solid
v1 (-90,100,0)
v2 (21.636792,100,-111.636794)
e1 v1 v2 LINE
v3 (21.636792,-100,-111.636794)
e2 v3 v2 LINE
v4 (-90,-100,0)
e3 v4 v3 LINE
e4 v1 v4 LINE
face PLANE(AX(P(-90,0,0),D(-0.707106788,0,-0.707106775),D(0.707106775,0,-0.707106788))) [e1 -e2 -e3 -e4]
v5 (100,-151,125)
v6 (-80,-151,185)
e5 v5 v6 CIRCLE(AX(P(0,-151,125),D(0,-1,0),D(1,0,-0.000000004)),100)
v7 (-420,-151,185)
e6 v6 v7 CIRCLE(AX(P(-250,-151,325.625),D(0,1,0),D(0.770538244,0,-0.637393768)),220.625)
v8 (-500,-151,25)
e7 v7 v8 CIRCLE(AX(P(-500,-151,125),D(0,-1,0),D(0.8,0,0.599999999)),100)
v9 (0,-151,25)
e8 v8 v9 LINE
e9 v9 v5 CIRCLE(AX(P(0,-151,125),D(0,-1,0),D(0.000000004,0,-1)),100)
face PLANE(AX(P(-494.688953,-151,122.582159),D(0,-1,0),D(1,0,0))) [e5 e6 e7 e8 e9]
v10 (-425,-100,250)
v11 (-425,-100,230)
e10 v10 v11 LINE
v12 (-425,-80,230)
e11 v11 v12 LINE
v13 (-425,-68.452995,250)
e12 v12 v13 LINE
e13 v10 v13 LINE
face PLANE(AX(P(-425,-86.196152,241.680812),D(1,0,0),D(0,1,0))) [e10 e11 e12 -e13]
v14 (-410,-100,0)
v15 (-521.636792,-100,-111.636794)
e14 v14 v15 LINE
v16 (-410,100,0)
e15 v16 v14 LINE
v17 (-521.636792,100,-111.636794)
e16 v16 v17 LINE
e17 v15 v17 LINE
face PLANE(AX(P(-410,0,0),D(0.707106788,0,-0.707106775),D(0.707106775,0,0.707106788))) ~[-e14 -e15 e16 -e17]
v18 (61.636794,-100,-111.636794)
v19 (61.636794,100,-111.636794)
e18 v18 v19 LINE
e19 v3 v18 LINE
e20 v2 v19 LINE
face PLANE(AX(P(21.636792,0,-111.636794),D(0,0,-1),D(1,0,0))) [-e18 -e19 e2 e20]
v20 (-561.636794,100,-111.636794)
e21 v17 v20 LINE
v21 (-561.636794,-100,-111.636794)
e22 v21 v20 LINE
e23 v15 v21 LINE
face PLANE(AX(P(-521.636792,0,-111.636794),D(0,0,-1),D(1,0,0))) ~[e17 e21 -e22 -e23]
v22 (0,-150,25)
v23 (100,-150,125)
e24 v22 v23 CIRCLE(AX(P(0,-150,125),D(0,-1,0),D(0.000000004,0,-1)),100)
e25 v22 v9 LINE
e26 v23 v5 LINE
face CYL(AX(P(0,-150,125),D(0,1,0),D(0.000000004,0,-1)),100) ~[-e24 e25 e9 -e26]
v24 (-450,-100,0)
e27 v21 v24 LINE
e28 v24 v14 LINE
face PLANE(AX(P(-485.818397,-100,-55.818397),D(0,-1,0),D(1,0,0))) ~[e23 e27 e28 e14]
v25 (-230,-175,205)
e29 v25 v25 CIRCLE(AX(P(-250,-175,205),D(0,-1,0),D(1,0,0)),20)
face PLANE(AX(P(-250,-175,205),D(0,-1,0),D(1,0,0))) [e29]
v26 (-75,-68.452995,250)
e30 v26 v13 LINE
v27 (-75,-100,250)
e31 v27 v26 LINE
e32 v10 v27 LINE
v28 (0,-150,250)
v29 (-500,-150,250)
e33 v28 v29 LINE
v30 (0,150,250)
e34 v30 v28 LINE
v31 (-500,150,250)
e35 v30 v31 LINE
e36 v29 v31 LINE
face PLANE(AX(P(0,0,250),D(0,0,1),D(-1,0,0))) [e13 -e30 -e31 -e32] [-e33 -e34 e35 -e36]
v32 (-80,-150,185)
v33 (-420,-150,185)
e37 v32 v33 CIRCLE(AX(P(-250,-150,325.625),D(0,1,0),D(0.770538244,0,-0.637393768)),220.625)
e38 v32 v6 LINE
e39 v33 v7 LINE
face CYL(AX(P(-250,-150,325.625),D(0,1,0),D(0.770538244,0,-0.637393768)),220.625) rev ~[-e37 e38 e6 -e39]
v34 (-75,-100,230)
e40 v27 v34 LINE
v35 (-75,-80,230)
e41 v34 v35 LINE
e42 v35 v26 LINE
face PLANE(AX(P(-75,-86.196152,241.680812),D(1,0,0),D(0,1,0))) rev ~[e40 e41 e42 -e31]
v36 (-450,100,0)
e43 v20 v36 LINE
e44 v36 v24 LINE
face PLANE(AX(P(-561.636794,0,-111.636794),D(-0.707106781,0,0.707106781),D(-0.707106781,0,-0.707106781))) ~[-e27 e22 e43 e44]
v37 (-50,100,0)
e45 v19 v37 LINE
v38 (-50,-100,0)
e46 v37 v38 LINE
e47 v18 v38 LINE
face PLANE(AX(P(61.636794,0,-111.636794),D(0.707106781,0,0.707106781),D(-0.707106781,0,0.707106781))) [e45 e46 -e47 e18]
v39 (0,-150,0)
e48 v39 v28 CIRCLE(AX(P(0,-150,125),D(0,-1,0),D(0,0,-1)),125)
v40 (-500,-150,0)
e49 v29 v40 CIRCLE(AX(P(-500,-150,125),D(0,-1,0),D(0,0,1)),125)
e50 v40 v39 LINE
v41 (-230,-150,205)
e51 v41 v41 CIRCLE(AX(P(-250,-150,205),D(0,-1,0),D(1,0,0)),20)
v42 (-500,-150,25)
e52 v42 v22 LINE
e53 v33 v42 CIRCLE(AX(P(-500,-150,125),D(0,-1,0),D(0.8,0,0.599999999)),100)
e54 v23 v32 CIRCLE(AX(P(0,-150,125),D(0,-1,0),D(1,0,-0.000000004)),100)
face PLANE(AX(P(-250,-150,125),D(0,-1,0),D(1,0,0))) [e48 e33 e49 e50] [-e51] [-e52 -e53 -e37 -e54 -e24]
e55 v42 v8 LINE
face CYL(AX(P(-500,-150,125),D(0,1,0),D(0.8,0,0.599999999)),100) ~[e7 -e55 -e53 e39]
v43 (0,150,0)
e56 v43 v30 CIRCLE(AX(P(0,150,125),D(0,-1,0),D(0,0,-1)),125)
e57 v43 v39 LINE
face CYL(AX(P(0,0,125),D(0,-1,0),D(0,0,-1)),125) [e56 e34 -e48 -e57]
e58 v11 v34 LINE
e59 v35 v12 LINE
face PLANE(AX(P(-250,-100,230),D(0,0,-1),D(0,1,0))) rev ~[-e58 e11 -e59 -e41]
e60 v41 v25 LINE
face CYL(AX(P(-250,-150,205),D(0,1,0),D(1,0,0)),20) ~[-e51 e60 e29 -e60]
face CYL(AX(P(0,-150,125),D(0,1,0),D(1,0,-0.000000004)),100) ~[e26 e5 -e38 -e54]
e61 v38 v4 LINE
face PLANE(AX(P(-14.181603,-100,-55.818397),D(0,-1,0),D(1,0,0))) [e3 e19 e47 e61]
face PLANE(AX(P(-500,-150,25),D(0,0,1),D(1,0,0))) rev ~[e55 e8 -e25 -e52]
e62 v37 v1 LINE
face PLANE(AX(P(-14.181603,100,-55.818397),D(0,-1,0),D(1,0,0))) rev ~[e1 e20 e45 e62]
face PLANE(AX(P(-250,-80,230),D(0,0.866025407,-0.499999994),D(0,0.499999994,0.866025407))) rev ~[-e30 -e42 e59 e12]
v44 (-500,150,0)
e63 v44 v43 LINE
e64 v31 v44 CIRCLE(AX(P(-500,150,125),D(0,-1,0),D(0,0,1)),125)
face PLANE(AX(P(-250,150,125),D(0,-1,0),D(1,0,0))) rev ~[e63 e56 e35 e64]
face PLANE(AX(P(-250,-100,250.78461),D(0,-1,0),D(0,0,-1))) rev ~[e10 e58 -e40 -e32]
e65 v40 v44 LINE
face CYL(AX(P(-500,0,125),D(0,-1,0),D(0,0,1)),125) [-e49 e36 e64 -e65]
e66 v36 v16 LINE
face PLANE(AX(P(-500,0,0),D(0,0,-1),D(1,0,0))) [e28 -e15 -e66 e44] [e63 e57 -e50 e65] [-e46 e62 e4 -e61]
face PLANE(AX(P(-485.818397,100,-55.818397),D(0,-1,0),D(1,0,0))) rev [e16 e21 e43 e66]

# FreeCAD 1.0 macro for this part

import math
import FreeCAD as App
import Part
import Sketcher
Q = App.Units.Quantity


def add_polygon(sketch, points):
    """Adds a closed chain of lines whose ends are joined by coincident constraints."""
    first, n = sketch.GeometryCount, len(points)
    for a, b in zip(points, points[1:] + points[:1]):
        sketch.addGeometry(Part.LineSegment(App.Vector(*a, 0), App.Vector(*b, 0)), False)
    for i in range(n):
        sketch.addConstraint(Sketcher.Constraint("Coincident", first + i, 2, first + (i + 1) % n, 1))

doc = App.newDocument("Part")
params = doc.addObject("Spreadsheet::Sheet", "Params")
for row, (alias, value) in enumerate([
    ("sketch1_radius", "125 mm"),
    ("sketch1_width", "500 mm"),
    ("pad1_length", "300 mm"),
    ("sketch2_width", "40 mm"),
    ("pad2_length", "200 mm"),
    ("sketch3_radius", "100 mm"),
    ("sketch3_width", "500 mm"),
    ("pad3_length", "1 mm"),
    ("sketch4_diameter", "40 mm"),
    ("pad4_length", "25 mm"),
    ("sketch5_width", "32 mm"),
    ("sketch5_width2", "20 mm"),
    ("pocket1_length", "350 mm"),
], start=1):
    params.set(f"A{row}", alias)
    params.set(f"B{row}", "=" + value)
    params.setAlias(f"B{row}", alias)

body = doc.addObject("PartDesign::Body", "Body")

# Sketch on XZ plane
sketch1 = body.newObject("Sketcher::SketchObject", "Sketch")
sketch1.AttachmentSupport = (doc.getObject("XZ_Plane"), [""])
sketch1.MapMode = "FlatFace"
sketch1.addGeometry(Part.LineSegment(App.Vector(-500, 0, 0), App.Vector(0, 0, 0)), False)
sketch1.addGeometry(Part.ArcOfCircle(Part.Circle(App.Vector(0, 125, 0), App.Vector(0, 0, 1), 125), math.radians(-90), math.radians(90)), False)
sketch1.addGeometry(Part.LineSegment(App.Vector(0, 250, 0), App.Vector(-500, 250, 0)), False)
sketch1.addGeometry(Part.ArcOfCircle(Part.Circle(App.Vector(-500, 125, 0), App.Vector(0, 0, 1), 125), math.radians(90), math.radians(270)), False)
sketch1.addConstraint(Sketcher.Constraint("Tangent", 0, 2, 1, 1))
sketch1.addConstraint(Sketcher.Constraint("Tangent", 1, 2, 2, 1))
sketch1.addConstraint(Sketcher.Constraint("Tangent", 2, 2, 3, 1))
sketch1.addConstraint(Sketcher.Constraint("Tangent", 3, 2, 0, 1))
sketch1.addConstraint(Sketcher.Constraint("Horizontal", 0))
sketch1.addConstraint(Sketcher.Constraint("Horizontal", 2))
sketch1.addConstraint(Sketcher.Constraint("Coincident", 0, 2, -1, 1))
sketch1.addConstraint(Sketcher.Constraint("Radius", 1, 125.0))
sketch1.addConstraint(Sketcher.Constraint("DistanceX", 0, 1, 0, 2, 500.0))
sketch1.setExpression("Constraints[7]", "Params.sketch1_radius")
sketch1.setExpression("Constraints[8]", "Params.sketch1_width")
pad1 = body.newObject("PartDesign::Pad", "Pad")
pad1.Profile = sketch1
pad1.setExpression("Length", "Params.pad1_length")
pad1.Midplane = True

# Sketch on XZ plane
sketch2 = body.newObject("Sketcher::SketchObject", "Sketch001")
sketch2.AttachmentSupport = (doc.getObject("XZ_Plane"), [""])
sketch2.MapMode = "FlatFace"
add_polygon(sketch2, [(61.636794, -111.636794), (-50, 0), (-90, 0), (21.636792, -111.636794)])  # lines 0-3
sketch2.addConstraint(Sketcher.Constraint("Horizontal", 1))
sketch2.addConstraint(Sketcher.Constraint("Horizontal", 3))
sketch2.addConstraint(Sketcher.Constraint("PointOnObject", 0, 2, -1))
sketch2.addConstraint(Sketcher.Constraint("Parallel", 0, 2))
sketch2.addConstraint(Sketcher.Constraint("DistanceX", 1, 2, 1, 1, 40.0))
sketch2.addConstraint(Sketcher.Constraint("Angle", 0, Q("135 deg")))
sketch2.addConstraint(Sketcher.Constraint("DistanceX", 0, 2, -1, 1, 50.0))
sketch2.addConstraint(Sketcher.Constraint("Distance", 0, 157.878268))
sketch2.setExpression("Constraints[8]", "Params.sketch2_width")
pad2 = body.newObject("PartDesign::Pad", "Pad001")
pad2.Profile = sketch2
pad2.setExpression("Length", "Params.pad2_length")
pad2.Midplane = True
body2 = doc.addObject("PartDesign::Body", "Body001")
doc.recompute()

body2.BaseFeature = body
doc.recompute()

mirroring = doc.addObject("Part::Mirroring", "Mirroring")
mirroring.Source = body
mirroring.Base = App.Vector(-250, 0, 0)
mirroring.Normal = App.Vector(1, 0, 0)
body3 = doc.addObject("PartDesign::Body", "Body002")
body3.BaseFeature = mirroring
boolean = body2.newObject("PartDesign::Boolean", "Boolean")
boolean.Type = "Fuse"
boolean.addObjects([body3])
doc.recompute()

# Sketch on XZ plane
sketch3 = body2.newObject("Sketcher::SketchObject", "Sketch002")
sketch3.AttachmentSupport = (doc.getObject("XZ_Plane001"), [""])
sketch3.MapMode = "FlatFace"
sketch3.AttachmentOffset = App.Placement(App.Vector(0, 0, 150), App.Rotation())
sketch3.addGeometry(Part.ArcOfCircle(Part.Circle(App.Vector(-500, 125, 0), App.Vector(0, 0, 1), 100), math.radians(36.869898), math.radians(270)), False)
sketch3.addGeometry(Part.LineSegment(App.Vector(-500, 25, 0), App.Vector(0, 25, 0)), False)
sketch3.addGeometry(Part.ArcOfCircle(Part.Circle(App.Vector(0, 125, 0), App.Vector(0, 0, 1), 100), math.radians(-90), math.radians(0)), False)
sketch3.addGeometry(Part.ArcOfCircle(Part.Circle(App.Vector(0, 125, 0), App.Vector(0, 0, 1), 100), math.radians(0), math.radians(143.130103)), False)
sketch3.addGeometry(Part.ArcOfCircle(Part.Circle(App.Vector(-250, 325.625, 0), App.Vector(0, 0, 1), 220.625), math.radians(-140.402247), math.radians(-39.597753)), False)
sketch3.addConstraint(Sketcher.Constraint("Tangent", 0, 2, 1, 1))
sketch3.addConstraint(Sketcher.Constraint("Tangent", 1, 2, 2, 1))
sketch3.addConstraint(Sketcher.Constraint("Tangent", 2, 2, 3, 1))
sketch3.addConstraint(Sketcher.Constraint("Coincident", 3, 2, 4, 2))
sketch3.addConstraint(Sketcher.Constraint("Coincident", 4, 1, 0, 1))
sketch3.addConstraint(Sketcher.Constraint("Horizontal", 1))
sketch3.addConstraint(Sketcher.Constraint("Equal", 0, 2))
sketch3.addConstraint(Sketcher.Constraint("Equal", 2, 3))
sketch3.addConstraint(Sketcher.Constraint("PointOnObject", 2, 3, -2))
sketch3.addConstraint(Sketcher.Constraint("Horizontal", 3, 3, 2, 2))
sketch3.addConstraint(Sketcher.Constraint("Horizontal", 3, 2, 4, 1))
sketch3.addConstraint(Sketcher.Constraint("Radius", 0, 100.0))
sketch3.addConstraint(Sketcher.Constraint("DistanceX", 1, 1, 1, 2, 500.0))
sketch3.addConstraint(Sketcher.Constraint("DistanceY", -1, 1, 0, 3, 125.0))
sketch3.addConstraint(Sketcher.Constraint("DistanceX", 3, 2, -1, 1, 80.0))
sketch3.addConstraint(Sketcher.Constraint("Radius", 4, 220.625))
sketch3.setExpression("Constraints[11]", "Params.sketch3_radius")
sketch3.setExpression("Constraints[12]", "Params.sketch3_width")
pad3 = body2.newObject("PartDesign::Pad", "Pad002")
pad3.Profile = sketch3
pad3.setExpression("Length", "Params.pad3_length")

# Sketch on XZ plane
sketch4 = body2.newObject("Sketcher::SketchObject", "Sketch003")
sketch4.AttachmentSupport = (doc.getObject("XZ_Plane001"), [""])
sketch4.MapMode = "FlatFace"
sketch4.AttachmentOffset = App.Placement(App.Vector(0, 0, 150), App.Rotation())
sketch4.addGeometry(Part.Circle(App.Vector(-250, 205, 0), App.Vector(0, 0, 1), 20), False)
sketch4.addConstraint(Sketcher.Constraint("Diameter", 0, 40.0))
sketch4.addConstraint(Sketcher.Constraint("DistanceX", 0, 3, -1, 1, 250.0))
sketch4.addConstraint(Sketcher.Constraint("DistanceY", -1, 1, 0, 3, 205.0))
sketch4.setExpression("Constraints[0]", "Params.sketch4_diameter")
pad4 = body2.newObject("PartDesign::Pad", "Pad003")
pad4.Profile = sketch4
pad4.setExpression("Length", "Params.pad4_length")

# Sketch on YZ plane
sketch5 = body2.newObject("Sketcher::SketchObject", "Sketch004")
sketch5.AttachmentSupport = (doc.getObject("YZ_Plane001"), [""])
sketch5.MapMode = "FlatFace"
sketch5.AttachmentOffset = App.Placement(App.Vector(0, 0, -250), App.Rotation())
add_polygon(sketch5, [(-68, 250.78461), (-100, 250.78461), (-100, 230), (-80, 230)])  # lines 0-3
sketch5.addConstraint(Sketcher.Constraint("Horizontal", 0))
sketch5.addConstraint(Sketcher.Constraint("Vertical", 1))
sketch5.addConstraint(Sketcher.Constraint("Horizontal", 2))
sketch5.addConstraint(Sketcher.Constraint("DistanceX", 0, 2, 0, 1, 32.0))
sketch5.addConstraint(Sketcher.Constraint("DistanceX", 2, 1, 2, 2, 20.0))
sketch5.addConstraint(Sketcher.Constraint("Angle", 3, Q("60 deg")))
sketch5.addConstraint(Sketcher.Constraint("DistanceX", 0, 2, -1, 1, 100.0))
sketch5.addConstraint(Sketcher.Constraint("DistanceY", -1, 1, 1, 2, 230.0))
sketch5.setExpression("Constraints[7]", "Params.sketch5_width")
sketch5.setExpression("Constraints[8]", "Params.sketch5_width2")
pocket1 = body2.newObject("PartDesign::Pocket", "Pocket")
pocket1.Profile = sketch5
pocket1.setExpression("Length", "Params.pocket1_length")
pocket1.Midplane = True
mirroring.Visibility = False

doc.recompute()
